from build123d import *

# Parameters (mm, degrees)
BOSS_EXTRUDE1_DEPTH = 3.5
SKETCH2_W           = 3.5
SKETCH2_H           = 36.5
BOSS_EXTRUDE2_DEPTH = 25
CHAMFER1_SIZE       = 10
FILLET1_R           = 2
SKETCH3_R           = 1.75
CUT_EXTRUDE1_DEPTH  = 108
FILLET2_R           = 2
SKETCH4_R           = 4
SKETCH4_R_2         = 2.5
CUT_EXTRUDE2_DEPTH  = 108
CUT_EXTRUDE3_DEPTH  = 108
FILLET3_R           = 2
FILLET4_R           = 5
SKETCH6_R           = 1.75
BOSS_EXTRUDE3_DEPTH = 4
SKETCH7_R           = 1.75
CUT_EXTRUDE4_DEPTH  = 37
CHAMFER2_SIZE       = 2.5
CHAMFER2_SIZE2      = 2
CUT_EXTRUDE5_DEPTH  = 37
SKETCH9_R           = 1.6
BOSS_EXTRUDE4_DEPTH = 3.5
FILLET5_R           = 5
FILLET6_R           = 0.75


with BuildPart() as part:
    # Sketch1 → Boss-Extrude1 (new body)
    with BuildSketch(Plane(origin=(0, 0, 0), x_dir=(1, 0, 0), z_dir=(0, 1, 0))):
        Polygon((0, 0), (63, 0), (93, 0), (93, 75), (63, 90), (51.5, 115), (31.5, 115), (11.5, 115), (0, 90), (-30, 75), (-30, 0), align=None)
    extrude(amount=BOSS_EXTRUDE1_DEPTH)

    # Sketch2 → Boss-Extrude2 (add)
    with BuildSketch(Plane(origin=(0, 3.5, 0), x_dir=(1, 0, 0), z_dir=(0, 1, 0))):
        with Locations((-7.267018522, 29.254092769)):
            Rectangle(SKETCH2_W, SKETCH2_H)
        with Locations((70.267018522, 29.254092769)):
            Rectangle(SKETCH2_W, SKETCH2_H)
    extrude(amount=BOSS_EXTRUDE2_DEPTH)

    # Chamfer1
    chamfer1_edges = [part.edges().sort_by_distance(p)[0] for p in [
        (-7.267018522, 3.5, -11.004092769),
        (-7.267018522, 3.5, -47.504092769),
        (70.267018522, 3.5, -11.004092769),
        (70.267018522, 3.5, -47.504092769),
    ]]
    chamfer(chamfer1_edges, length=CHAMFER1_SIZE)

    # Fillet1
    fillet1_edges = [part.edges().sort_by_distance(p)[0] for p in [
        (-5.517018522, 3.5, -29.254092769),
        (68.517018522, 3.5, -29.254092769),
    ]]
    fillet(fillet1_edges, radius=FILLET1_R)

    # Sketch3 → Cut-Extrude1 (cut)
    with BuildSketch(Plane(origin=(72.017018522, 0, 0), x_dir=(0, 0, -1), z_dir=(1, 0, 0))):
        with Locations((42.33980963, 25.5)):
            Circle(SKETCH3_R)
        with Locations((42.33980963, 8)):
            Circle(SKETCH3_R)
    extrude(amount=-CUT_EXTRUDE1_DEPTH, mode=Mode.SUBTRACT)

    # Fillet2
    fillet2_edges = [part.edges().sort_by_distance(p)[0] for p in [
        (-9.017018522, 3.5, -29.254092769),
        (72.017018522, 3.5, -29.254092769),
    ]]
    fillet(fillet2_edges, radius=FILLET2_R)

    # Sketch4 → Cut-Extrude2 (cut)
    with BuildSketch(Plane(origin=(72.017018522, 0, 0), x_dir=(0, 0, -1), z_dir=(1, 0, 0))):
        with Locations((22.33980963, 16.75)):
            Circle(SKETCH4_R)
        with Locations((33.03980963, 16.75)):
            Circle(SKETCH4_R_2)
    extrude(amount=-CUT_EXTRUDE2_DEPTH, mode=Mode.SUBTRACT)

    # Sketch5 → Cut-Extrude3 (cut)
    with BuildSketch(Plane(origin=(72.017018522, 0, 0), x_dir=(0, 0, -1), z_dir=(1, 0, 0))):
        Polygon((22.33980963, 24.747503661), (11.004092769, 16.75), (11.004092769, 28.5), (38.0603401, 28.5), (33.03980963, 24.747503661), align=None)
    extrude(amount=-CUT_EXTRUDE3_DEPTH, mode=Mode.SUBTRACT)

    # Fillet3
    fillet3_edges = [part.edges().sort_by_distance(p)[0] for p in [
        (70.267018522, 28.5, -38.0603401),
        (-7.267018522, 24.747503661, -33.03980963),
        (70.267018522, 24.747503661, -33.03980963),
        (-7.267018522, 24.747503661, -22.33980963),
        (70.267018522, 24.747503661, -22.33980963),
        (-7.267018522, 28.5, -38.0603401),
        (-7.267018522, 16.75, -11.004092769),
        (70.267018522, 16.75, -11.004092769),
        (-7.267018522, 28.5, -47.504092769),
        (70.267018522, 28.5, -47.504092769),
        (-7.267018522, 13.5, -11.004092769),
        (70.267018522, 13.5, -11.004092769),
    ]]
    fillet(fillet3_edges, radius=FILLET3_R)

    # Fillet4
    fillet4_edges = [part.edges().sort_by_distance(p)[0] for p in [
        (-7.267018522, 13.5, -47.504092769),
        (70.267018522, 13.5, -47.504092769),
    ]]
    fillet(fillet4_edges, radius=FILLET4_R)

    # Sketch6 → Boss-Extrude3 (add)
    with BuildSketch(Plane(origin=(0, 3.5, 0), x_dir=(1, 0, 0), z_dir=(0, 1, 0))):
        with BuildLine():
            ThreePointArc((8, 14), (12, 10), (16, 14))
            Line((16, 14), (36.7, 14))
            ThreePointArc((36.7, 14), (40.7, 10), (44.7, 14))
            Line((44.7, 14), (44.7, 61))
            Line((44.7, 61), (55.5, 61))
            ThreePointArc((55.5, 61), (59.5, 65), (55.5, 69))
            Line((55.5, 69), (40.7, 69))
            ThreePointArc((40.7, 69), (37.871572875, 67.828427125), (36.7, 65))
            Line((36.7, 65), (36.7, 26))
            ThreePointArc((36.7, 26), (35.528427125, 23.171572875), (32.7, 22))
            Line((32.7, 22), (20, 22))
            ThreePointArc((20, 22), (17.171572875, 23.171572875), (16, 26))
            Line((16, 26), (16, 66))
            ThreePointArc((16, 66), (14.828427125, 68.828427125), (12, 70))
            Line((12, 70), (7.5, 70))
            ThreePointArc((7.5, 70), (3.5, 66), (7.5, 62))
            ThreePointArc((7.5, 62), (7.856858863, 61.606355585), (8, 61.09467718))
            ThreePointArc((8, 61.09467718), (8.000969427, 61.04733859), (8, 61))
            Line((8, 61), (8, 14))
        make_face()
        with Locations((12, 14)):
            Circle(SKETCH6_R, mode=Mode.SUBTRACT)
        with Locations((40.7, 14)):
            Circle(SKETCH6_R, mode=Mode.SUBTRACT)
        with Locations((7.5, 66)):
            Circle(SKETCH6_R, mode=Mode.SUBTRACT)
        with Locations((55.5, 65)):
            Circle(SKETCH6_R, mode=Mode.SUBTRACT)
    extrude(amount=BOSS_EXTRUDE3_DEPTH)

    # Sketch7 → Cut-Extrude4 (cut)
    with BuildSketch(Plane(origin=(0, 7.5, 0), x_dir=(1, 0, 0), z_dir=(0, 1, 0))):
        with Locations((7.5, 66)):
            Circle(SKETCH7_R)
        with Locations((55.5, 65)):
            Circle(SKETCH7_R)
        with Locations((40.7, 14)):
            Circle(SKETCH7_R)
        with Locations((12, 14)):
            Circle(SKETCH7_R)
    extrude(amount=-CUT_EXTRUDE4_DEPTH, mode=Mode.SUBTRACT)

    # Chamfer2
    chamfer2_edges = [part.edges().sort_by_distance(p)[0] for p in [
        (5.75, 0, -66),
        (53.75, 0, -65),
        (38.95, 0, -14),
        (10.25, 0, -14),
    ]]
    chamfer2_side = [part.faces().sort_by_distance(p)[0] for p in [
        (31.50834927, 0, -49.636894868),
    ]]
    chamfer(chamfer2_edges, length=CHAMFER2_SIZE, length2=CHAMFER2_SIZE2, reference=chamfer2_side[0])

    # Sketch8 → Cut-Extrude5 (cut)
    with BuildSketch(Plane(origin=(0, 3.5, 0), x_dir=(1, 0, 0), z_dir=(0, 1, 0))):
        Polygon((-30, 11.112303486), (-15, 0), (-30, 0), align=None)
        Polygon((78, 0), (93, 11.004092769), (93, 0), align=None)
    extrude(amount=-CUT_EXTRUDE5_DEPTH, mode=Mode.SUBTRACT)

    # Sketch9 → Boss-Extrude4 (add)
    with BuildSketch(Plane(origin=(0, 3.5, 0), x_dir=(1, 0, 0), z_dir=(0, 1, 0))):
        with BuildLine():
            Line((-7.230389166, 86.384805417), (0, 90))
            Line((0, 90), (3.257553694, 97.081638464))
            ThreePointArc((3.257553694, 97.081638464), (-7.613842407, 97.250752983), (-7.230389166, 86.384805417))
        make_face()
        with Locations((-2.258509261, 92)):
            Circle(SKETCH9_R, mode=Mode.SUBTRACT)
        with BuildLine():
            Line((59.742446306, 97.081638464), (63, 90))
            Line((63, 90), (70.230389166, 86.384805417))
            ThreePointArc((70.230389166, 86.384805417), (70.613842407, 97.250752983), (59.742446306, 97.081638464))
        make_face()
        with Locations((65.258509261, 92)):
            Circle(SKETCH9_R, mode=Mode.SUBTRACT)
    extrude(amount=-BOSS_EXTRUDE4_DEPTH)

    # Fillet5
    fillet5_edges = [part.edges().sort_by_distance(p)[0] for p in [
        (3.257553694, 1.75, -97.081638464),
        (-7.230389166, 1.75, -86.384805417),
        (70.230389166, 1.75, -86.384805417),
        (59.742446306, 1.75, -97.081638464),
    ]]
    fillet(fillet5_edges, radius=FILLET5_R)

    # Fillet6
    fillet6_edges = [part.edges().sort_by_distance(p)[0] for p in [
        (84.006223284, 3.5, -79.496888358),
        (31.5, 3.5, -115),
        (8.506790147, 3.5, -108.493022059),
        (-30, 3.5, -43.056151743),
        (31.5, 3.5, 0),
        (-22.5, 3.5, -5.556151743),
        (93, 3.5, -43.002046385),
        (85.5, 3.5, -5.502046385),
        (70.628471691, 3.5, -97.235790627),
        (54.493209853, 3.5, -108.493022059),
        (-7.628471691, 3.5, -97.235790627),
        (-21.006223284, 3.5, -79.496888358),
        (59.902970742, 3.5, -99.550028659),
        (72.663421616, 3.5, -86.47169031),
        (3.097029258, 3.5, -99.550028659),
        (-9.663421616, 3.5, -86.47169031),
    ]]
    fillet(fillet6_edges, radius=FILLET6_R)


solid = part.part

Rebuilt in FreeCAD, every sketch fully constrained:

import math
import FreeCAD as App
import Part
import Sketcher
from FreeCAD import Vector
Q = App.Units.Quantity


def edges_at(feature, points):
    """Names of the edges that pass closest to the given points."""
    edges = feature.Shape.Edges
    near = lambda p: min(range(len(edges)), key=lambda i: edges[i].distToShape(Part.Vertex(*p))[0])
    return sorted({f"Edge{near(p) + 1}" for p in points})


def add_polygon(sketch, points):
    """Adds a closed chain of lines whose ends are joined by coincident constraints."""
    first, n = sketch.GeometryCount, len(points)
    for a, b in zip(points, points[1:] + points[:1]):
        sketch.addGeometry(Part.LineSegment(App.Vector(*a, 0), App.Vector(*b, 0)), False)
    for i in range(n):
        sketch.addConstraint(Sketcher.Constraint("Coincident", first + i, 2, first + (i + 1) % n, 1))

doc = App.newDocument("Part")
body = doc.addObject("PartDesign::Body", "Body")

# Sketch on XZ plane
sketch1 = doc.addObject("Sketcher::SketchObject", "Sketch")
body.addObject(sketch1)
sketch1.AttachmentSupport = (doc.XZ_Plane, [""])
sketch1.MapMode = "FlatFace"
add_polygon(sketch1, [(93, 0), (93, -75), (63, -90), (51.5, -115), (11.5, -115), (0, -90), (-30, -75), (-30, 0)])  # lines 0-7
sketch1.addConstraint(Sketcher.Constraint("Vertical", 0))
sketch1.addConstraint(Sketcher.Constraint("Horizontal", 3))
sketch1.addConstraint(Sketcher.Constraint("Vertical", 6))
sketch1.addConstraint(Sketcher.Constraint("Horizontal", 7))
sketch1.addConstraint(Sketcher.Constraint("PointOnObject", 4, 2, -2))
sketch1.addConstraint(Sketcher.Constraint("PointOnObject", 6, 2, -1))
sketch1.addConstraint(Sketcher.Constraint("Horizontal", 1, 2, 4, 2))
sketch1.addConstraint(Sketcher.Constraint("Horizontal", 0, 2, 5, 2))
sketch1.addConstraint(Sketcher.Constraint("Equal", 2, 4))
sketch1.addConstraint(Sketcher.Constraint("Equal", 1, 5))
sketch1.addConstraint(Sketcher.Constraint("DistanceX", 3, 2, 3, 1, Q("40 mm")))
sketch1.addConstraint(Sketcher.Constraint("DistanceX", 7, 1, 7, 2, Q("123 mm")))
sketch1.addConstraint(Sketcher.Constraint("DistanceY", 0, 2, 0, 1, Q("75 mm")))
sketch1.addConstraint(Sketcher.Constraint("DistanceX", -1, 1, 0, 2, Q("93 mm")))
sketch1.addConstraint(Sketcher.Constraint("DistanceY", 1, 2, -1, 1, Q("90 mm")))
sketch1.addConstraint(Sketcher.Constraint("DistanceY", 2, 2, -1, 1, Q("115 mm")))
pad1 = doc.addObject("PartDesign::Pad", "Pad")
body.addObject(pad1)
pad1.Profile = sketch1
pad1.Length = 3.5
pad1.Reversed = True

# Sketch on XZ plane
sketch2 = doc.addObject("Sketcher::SketchObject", "Sketch001")
body.addObject(sketch2)
sketch2.AttachmentSupport = (doc.XZ_Plane, [""])
sketch2.MapMode = "FlatFace"
sketch2.AttachmentOffset = App.Placement(Vector(0, 0, -3.5), App.Rotation())
add_polygon(sketch2, [(-9.017019, -47.504093), (-9.017019, -11.004093), (-5.517019, -11.004093), (-5.517019, -47.504093)])  # lines 0-3
add_polygon(sketch2, [(68.517019, -47.504093), (68.517019, -11.004093), (72.017019, -11.004093), (72.017019, -47.504093)])  # lines 4-7
sketch2.addConstraint(Sketcher.Constraint("Vertical", 0))
sketch2.addConstraint(Sketcher.Constraint("Horizontal", 1))
sketch2.addConstraint(Sketcher.Constraint("Vertical", 2))
sketch2.addConstraint(Sketcher.Constraint("Horizontal", 3))
sketch2.addConstraint(Sketcher.Constraint("Vertical", 4))
sketch2.addConstraint(Sketcher.Constraint("Horizontal", 5))
sketch2.addConstraint(Sketcher.Constraint("Vertical", 6))
sketch2.addConstraint(Sketcher.Constraint("Horizontal", 7))
sketch2.addConstraint(Sketcher.Constraint("Horizontal", 1, 2, 4, 2))
sketch2.addConstraint(Sketcher.Constraint("Horizontal", 3, 2, 6, 2))
sketch2.addConstraint(Sketcher.Constraint("Equal", 3, 5))
sketch2.addConstraint(Sketcher.Constraint("DistanceX", 1, 1, 1, 2, Q("3.5 mm")))
sketch2.addConstraint(Sketcher.Constraint("DistanceY", 0, 1, 0, 2, Q("36.5 mm")))
sketch2.addConstraint(Sketcher.Constraint("DistanceX", 0, 2, -1, 1, Q("9.017019 mm")))
sketch2.addConstraint(Sketcher.Constraint("DistanceX", -1, 1, 4, 2, Q("68.517019 mm")))
sketch2.addConstraint(Sketcher.Constraint("DistanceY", 0, 2, -1, 1, Q("11.004093 mm")))
pad2 = doc.addObject("PartDesign::Pad", "Pad001")
body.addObject(pad2)
pad2.Profile = sketch2
pad2.Length = 25
pad2.Reversed = True
doc.recompute()

chamfer = doc.addObject("PartDesign::Chamfer", "Chamfer")
body.addObject(chamfer)
chamfer.Base = (pad2, edges_at(pad2, [
    (-7.267, 3.5, -11.004),
    (-7.267, 3.5, -47.504),
    (70.267, 3.5, -11.004),
    (70.267, 3.5, -47.504),
]))
chamfer.Size = 10
doc.recompute()

fillet = doc.addObject("PartDesign::Fillet", "Fillet")
body.addObject(fillet)
fillet.Base = (chamfer, edges_at(chamfer, [(-5.517, 3.5, -29.254), (68.517, 3.5, -29.254)]))
fillet.Radius = 2

# Sketch on YZ plane
sketch3 = doc.addObject("Sketcher::SketchObject", "Sketch002")
body.addObject(sketch3)
sketch3.AttachmentSupport = (doc.YZ_Plane, [""])
sketch3.MapMode = "FlatFace"
sketch3.AttachmentOffset = App.Placement(Vector(0, 0, 72.017019), App.Rotation())
sketch3.addGeometry(Part.Circle(Vector(25.5, -42.33981, 0), Vector(0, 0, 1), 1.75), False)
sketch3.addGeometry(Part.Circle(Vector(8, -42.33981, 0), Vector(0, 0, 1), 1.75), False)
sketch3.addConstraint(Sketcher.Constraint("Equal", 0, 1))
sketch3.addConstraint(Sketcher.Constraint("Horizontal", 0, 3, 1, 3))
sketch3.addConstraint(Sketcher.Constraint("Diameter", 0, Q("3.5 mm")))
sketch3.addConstraint(Sketcher.Constraint("DistanceX", -1, 1, 1, 3, Q("8 mm")))
sketch3.addConstraint(Sketcher.Constraint("DistanceX", -1, 1, 0, 3, Q("25.5 mm")))
sketch3.addConstraint(Sketcher.Constraint("DistanceY", 0, 3, -1, 1, Q("42.33981 mm")))
pocket1 = doc.addObject("PartDesign::Pocket", "Pocket")
body.addObject(pocket1)
pocket1.Profile = sketch3
pocket1.Length = 108
doc.recompute()

fillet2 = doc.addObject("PartDesign::Fillet", "Fillet001")
body.addObject(fillet2)
fillet2.Base = (pocket1, edges_at(pocket1, [(-9.017, 3.5, -29.254), (72.017, 3.5, -29.254)]))
fillet2.Radius = 2

# Sketch on YZ plane
sketch4 = doc.addObject("Sketcher::SketchObject", "Sketch003")
body.addObject(sketch4)
sketch4.AttachmentSupport = (doc.YZ_Plane, [""])
sketch4.MapMode = "FlatFace"
sketch4.AttachmentOffset = App.Placement(Vector(0, 0, 72.017019), App.Rotation())
sketch4.addGeometry(Part.Circle(Vector(16.75, -22.33981, 0), Vector(0, 0, 1), 4), False)
sketch4.addGeometry(Part.Circle(Vector(16.75, -33.03981, 0), Vector(0, 0, 1), 2.5), False)
sketch4.addConstraint(Sketcher.Constraint("Vertical", 0, 3, 1, 3))
sketch4.addConstraint(Sketcher.Constraint("Diameter", 0, Q("8 mm")))
sketch4.addConstraint(Sketcher.Constraint("Diameter", 1, Q("5 mm")))
sketch4.addConstraint(Sketcher.Constraint("DistanceY", 1, 3, 0, 3, Q("10.7 mm")))
sketch4.addConstraint(Sketcher.Constraint("DistanceX", -1, 1, 0, 3, Q("16.75 mm")))
sketch4.addConstraint(Sketcher.Constraint("DistanceY", 0, 3, -1, 1, Q("22.33981 mm")))
pocket2 = doc.addObject("PartDesign::Pocket", "Pocket001")
body.addObject(pocket2)
pocket2.Profile = sketch4
pocket2.Length = 108

# Sketch on YZ plane
sketch5 = doc.addObject("Sketcher::SketchObject", "Sketch004")
body.addObject(sketch5)
sketch5.AttachmentSupport = (doc.YZ_Plane, [""])
sketch5.MapMode = "FlatFace"
sketch5.AttachmentOffset = App.Placement(Vector(0, 0, 72.017019), App.Rotation())
add_polygon(sketch5, [(16.75, -11.004093), (24.747504, -22.33981), (24.747504, -33.03981), (28.5, -38.06034), (28.5, -11.004093)])  # lines 0-4
sketch5.addConstraint(Sketcher.Constraint("Vertical", 1))
sketch5.addConstraint(Sketcher.Constraint("Vertical", 3))
sketch5.addConstraint(Sketcher.Constraint("Horizontal", 4))
sketch5.addConstraint(Sketcher.Constraint("DistanceY", 1, 2, 1, 1, Q("10.7 mm")))
sketch5.addConstraint(Sketcher.Constraint("DistanceX", 4, 2, 4, 1, Q("11.75 mm")))
sketch5.addConstraint(Sketcher.Constraint("DistanceX", -1, 1, 2, 2, Q("28.5 mm")))
sketch5.addConstraint(Sketcher.Constraint("Distance", 2, Q("6.267931 mm")))
sketch5.addConstraint(Sketcher.Constraint("DistanceY", 3, 1, 3, 2, Q("27.056247 mm")))
sketch5.addConstraint(Sketcher.Constraint("DistanceY", 0, 2, -1, 1, Q("22.33981 mm")))
sketch5.addConstraint(Sketcher.Constraint("DistanceY", 2, 2, -1, 1, Q("38.06034 mm")))
pocket3 = doc.addObject("PartDesign::Pocket", "Pocket002")
body.addObject(pocket3)
pocket3.Profile = sketch5
pocket3.Length = 108
doc.recompute()

fillet3 = doc.addObject("PartDesign::Fillet", "Fillet002")
body.addObject(fillet3)
fillet3.Base = (pocket3, edges_at(pocket3, [
    (70.267, 28.5, -38.06),
    (-7.267, 24.748, -33.04),
    (70.267, 24.748, -33.04),
    (-7.267, 24.748, -22.34),
    (70.267, 24.748, -22.34),
    (-7.267, 28.5, -38.06),
    (-7.267, 16.75, -11.004),
    (70.267, 16.75, -11.004),
    (-7.267, 28.5, -47.504),
    (70.267, 28.5, -47.504),
    (-7.267, 13.5, -11.004),
    (70.267, 13.5, -11.004),
]))
fillet3.Radius = 2
doc.recompute()

fillet4 = doc.addObject("PartDesign::Fillet", "Fillet003")
body.addObject(fillet4)
fillet4.Base = (fillet3, edges_at(fillet3, [(-7.267, 13.5, -47.504), (70.267, 13.5, -47.504)]))
fillet4.Radius = 5

# Sketch on XZ plane
sketch6 = doc.addObject("Sketcher::SketchObject", "Sketch005")
body.addObject(sketch6)
sketch6.AttachmentSupport = (doc.XZ_Plane, [""])
sketch6.MapMode = "FlatFace"
sketch6.AttachmentOffset = App.Placement(Vector(0, 0, -3.5), App.Rotation())
sketch6.addGeometry(Part.ArcOfCircle(Part.Circle(Vector(12, -14, 0), Vector(0, 0, 1), 4), math.radians(0), math.radians(180)), False)
sketch6.addGeometry(Part.LineSegment(Vector(16, -14, 0), Vector(36.7, -14, 0)), False)
sketch6.addGeometry(Part.ArcOfCircle(Part.Circle(Vector(40.7, -14, 0), Vector(0, 0, 1), 4), math.radians(0), math.radians(180)), False)
sketch6.addGeometry(Part.LineSegment(Vector(44.7, -14, 0), Vector(44.7, -61, 0)), False)
sketch6.addGeometry(Part.LineSegment(Vector(44.7, -61, 0), Vector(55.5, -61, 0)), False)
sketch6.addGeometry(Part.ArcOfCircle(Part.Circle(Vector(55.5, -65, 0), Vector(0, 0, 1), 4), math.radians(-90), math.radians(90)), False)
sketch6.addGeometry(Part.LineSegment(Vector(55.5, -69, 0), Vector(40.7, -69, 0)), False)
sketch6.addGeometry(Part.ArcOfCircle(Part.Circle(Vector(40.7, -65, 0), Vector(0, 0, 1), 4), math.radians(180), math.radians(270)), False)
sketch6.addGeometry(Part.LineSegment(Vector(36.7, -65, 0), Vector(36.7, -26, 0)), False)
sketch6.addGeometry(Part.ArcOfCircle(Part.Circle(Vector(32.7, -26, 0), Vector(0, 0, 1), 4), math.radians(0), math.radians(90)), False)
sketch6.addGeometry(Part.LineSegment(Vector(32.7, -22, 0), Vector(20, -22, 0)), False)
sketch6.addGeometry(Part.ArcOfCircle(Part.Circle(Vector(20, -26, 0), Vector(0, 0, 1), 4), math.radians(90), math.radians(180)), False)
sketch6.addGeometry(Part.LineSegment(Vector(16, -26, 0), Vector(16, -66, 0)), False)
sketch6.addGeometry(Part.ArcOfCircle(Part.Circle(Vector(12, -66, 0), Vector(0, 0, 1), 4), math.radians(-90), math.radians(0)), False)
sketch6.addGeometry(Part.LineSegment(Vector(12, -70, 0), Vector(7.5, -70, 0)), False)
sketch6.addGeometry(Part.ArcOfCircle(Part.Circle(Vector(7.5, -66, 0), Vector(0, 0, 1), 4), math.radians(90), math.radians(270)), False)
sketch6.addGeometry(Part.ArcOfCircle(Part.Circle(Vector(6.844677, -61.047339, 0), Vector(0, 0, 1), 1.156292), math.radians(-55.476447), math.radians(-2.346344)), False)
sketch6.addGeometry(Part.ArcOfCircle(Part.Circle(Vector(6.844677, -61.047339, 0), Vector(0, 0, 1), 1.156292), math.radians(-2.346344), math.radians(2.346344)), False)
sketch6.addGeometry(Part.LineSegment(Vector(8, -61, 0), Vector(8, -14, 0)), False)
sketch6.addGeometry(Part.Circle(Vector(12, -14, 0), Vector(0, 0, 1), 1.75), False)
sketch6.addGeometry(Part.Circle(Vector(40.7, -14, 0), Vector(0, 0, 1), 1.75), False)
sketch6.addGeometry(Part.Circle(Vector(7.5, -66, 0), Vector(0, 0, 1), 1.75), False)
sketch6.addGeometry(Part.Circle(Vector(55.5, -65, 0), Vector(0, 0, 1), 1.75), False)
sketch6.addConstraint(Sketcher.Constraint("Coincident", 0, 1, 1, 1))
sketch6.addConstraint(Sketcher.Constraint("Coincident", 1, 2, 2, 2))
sketch6.addConstraint(Sketcher.Constraint("Tangent", 2, 1, 3, 1))
sketch6.addConstraint(Sketcher.Constraint("Coincident", 3, 2, 4, 1))
sketch6.addConstraint(Sketcher.Constraint("Tangent", 4, 2, 5, 2))
sketch6.addConstraint(Sketcher.Constraint("Tangent", 5, 1, 6, 1))
sketch6.addConstraint(Sketcher.Constraint("Tangent", 6, 2, 7, 2))
sketch6.addConstraint(Sketcher.Constraint("Tangent", 7, 1, 8, 1))
sketch6.addConstraint(Sketcher.Constraint("Tangent", 8, 2, 9, 1))
sketch6.addConstraint(Sketcher.Constraint("Tangent", 9, 2, 10, 1))
sketch6.addConstraint(Sketcher.Constraint("Tangent", 10, 2, 11, 1))
sketch6.addConstraint(Sketcher.Constraint("Tangent", 11, 2, 12, 1))
sketch6.addConstraint(Sketcher.Constraint("Tangent", 12, 2, 13, 2))
sketch6.addConstraint(Sketcher.Constraint("Tangent", 13, 1, 14, 1))
sketch6.addConstraint(Sketcher.Constraint("Tangent", 14, 2, 15, 2))
sketch6.addConstraint(Sketcher.Constraint("Coincident", 15, 1, 16, 1))
sketch6.addConstraint(Sketcher.Constraint("Tangent", 16, 2, 17, 1))
sketch6.addConstraint(Sketcher.Constraint("Coincident", 17, 2, 18, 1))
sketch6.addConstraint(Sketcher.Constraint("Tangent", 18, 2, 0, 2))
sketch6.addConstraint(Sketcher.Constraint("Horizontal", 1))
sketch6.addConstraint(Sketcher.Constraint("Vertical", 3))
sketch6.addConstraint(Sketcher.Constraint("Horizontal", 4))
sketch6.addConstraint(Sketcher.Constraint("Horizontal", 6))
sketch6.addConstraint(Sketcher.Constraint("Vertical", 8))
sketch6.addConstraint(Sketcher.Constraint("Horizontal", 10))
sketch6.addConstraint(Sketcher.Constraint("Vertical", 12))
sketch6.addConstraint(Sketcher.Constraint("Horizontal", 14))
sketch6.addConstraint(Sketcher.Constraint("Vertical", 18))
sketch6.addConstraint(Sketcher.Constraint("Coincident", 19, 3, 0, 3))
sketch6.addConstraint(Sketcher.Constraint("Coincident", 20, 3, 2, 3))
sketch6.addConstraint(Sketcher.Constraint("Coincident", 21, 3, 15, 3))
sketch6.addConstraint(Sketcher.Constraint("Coincident", 22, 3, 5, 3))
sketch6.addConstraint(Sketcher.Constraint("Equal", 0, 2))
sketch6.addConstraint(Sketcher.Constraint("Equal", 2, 5))
sketch6.addConstraint(Sketcher.Constraint("Equal", 5, 7))
sketch6.addConstraint(Sketcher.Constraint("Equal", 7, 9))
sketch6.addConstraint(Sketcher.Constraint("Equal", 9, 11))
sketch6.addConstraint(Sketcher.Constraint("Equal", 11, 13))
sketch6.addConstraint(Sketcher.Constraint("Equal", 13, 15))
sketch6.addConstraint(Sketcher.Constraint("Equal", 16, 17))
sketch6.addConstraint(Sketcher.Constraint("Equal", 19, 20))
sketch6.addConstraint(Sketcher.Constraint("Equal", 20, 21))
sketch6.addConstraint(Sketcher.Constraint("Equal", 21, 22))
sketch6.addConstraint(Sketcher.Constraint("Horizontal", 0, 3, 2, 3))
sketch6.addConstraint(Sketcher.Constraint("Horizontal", 20, 3, 0, 1))
sketch6.addConstraint(Sketcher.Constraint("Horizontal", 4, 2, 17, 2))
sketch6.addConstraint(Sketcher.Constraint("Vertical", 2, 3, 7, 3))
sketch6.addConstraint(Sketcher.Constraint("Vertical", 0, 3, 13, 3))
sketch6.addConstraint(Sketcher.Constraint("Vertical", 14, 2, 15, 1))
sketch6.addConstraint(Sketcher.Constraint("Vertical", 16, 2, 17, 2))
sketch6.addConstraint(Sketcher.Constraint("Radius", 0, Q("4 mm")))
sketch6.addConstraint(Sketcher.Constraint("Diameter", 19, Q("3.5 mm")))
sketch6.addConstraint(Sketcher.Constraint("DistanceY", 3, 2, 3, 1, Q("47 mm")))
sketch6.addConstraint(Sketcher.Constraint("DistanceY", 8, 1, 8, 2, Q("39 mm")))
sketch6.addConstraint(Sketcher.Constraint("DistanceY", 12, 2, 12, 1, Q("40 mm")))
sketch6.addConstraint(Sketcher.Constraint("DistanceX", 1, 1, 1, 2, Q("20.7 mm")))
sketch6.addConstraint(Sketcher.Constraint("DistanceX", 4, 1, 4, 2, Q("10.8 mm")))
sketch6.addConstraint(Sketcher.Constraint("DistanceX", 14, 2, 14, 1, Q("4.5 mm")))
sketch6.addConstraint(Sketcher.Constraint("DistanceX", -1, 1, 0, 3, Q("12 mm")))
sketch6.addConstraint(Sketcher.Constraint("DistanceY", 0, 3, -1, 1, Q("14 mm")))
sketch6.addConstraint(Sketcher.Constraint("Radius", 16, Q("1.156292 mm")))
pad3 = doc.addObject("PartDesign::Pad", "Pad002")
body.addObject(pad3)
pad3.Profile = sketch6
pad3.Length = 4
pad3.Reversed = True

# Sketch on XZ plane
sketch7 = doc.addObject("Sketcher::SketchObject", "Sketch006")
body.addObject(sketch7)
sketch7.AttachmentSupport = (doc.XZ_Plane, [""])
sketch7.MapMode = "FlatFace"
sketch7.AttachmentOffset = App.Placement(Vector(0, 0, -7.5), App.Rotation())
sketch7.addGeometry(Part.Circle(Vector(7.5, -66, 0), Vector(0, 0, 1), 1.75), False)
sketch7.addGeometry(Part.Circle(Vector(55.5, -65, 0), Vector(0, 0, 1), 1.75), False)
sketch7.addGeometry(Part.Circle(Vector(40.7, -14, 0), Vector(0, 0, 1), 1.75), False)
sketch7.addGeometry(Part.Circle(Vector(12, -14, 0), Vector(0, 0, 1), 1.75), False)
sketch7.addConstraint(Sketcher.Constraint("Equal", 0, 1))
sketch7.addConstraint(Sketcher.Constraint("Equal", 1, 2))
sketch7.addConstraint(Sketcher.Constraint("Equal", 2, 3))
sketch7.addConstraint(Sketcher.Constraint("Horizontal", 2, 3, 3, 3))
sketch7.addConstraint(Sketcher.Constraint("Diameter", 0, Q("3.5 mm")))
sketch7.addConstraint(Sketcher.Constraint("DistanceY", 0, 3, -1, 1, Q("66 mm")))
sketch7.addConstraint(Sketcher.Constraint("DistanceY", 1, 3, -1, 1, Q("65 mm")))
sketch7.addConstraint(Sketcher.Constraint("DistanceY", 2, 3, -1, 1, Q("14 mm")))
sketch7.addConstraint(Sketcher.Constraint("DistanceX", -1, 1, 3, 3, Q("12 mm")))
sketch7.addConstraint(Sketcher.Constraint("DistanceX", 0, 3, 1, 3, Q("48 mm")))
sketch7.addConstraint(Sketcher.Constraint("DistanceX", -1, 1, 0, 3, Q("7.5 mm")))
sketch7.addConstraint(Sketcher.Constraint("DistanceX", -1, 1, 2, 3, Q("40.7 mm")))
pocket4 = doc.addObject("PartDesign::Pocket", "Pocket003")
body.addObject(pocket4)
pocket4.Profile = sketch7
pocket4.Length = 37
pocket4.Reversed = True
doc.recompute()

chamfer2 = doc.addObject("PartDesign::Chamfer", "Chamfer001")
body.addObject(chamfer2)
chamfer2.Base = (pocket4, edges_at(pocket4, [
    (5.75, 0, -66),
    (53.75, 0, -65),
    (38.95, 0, -14),
    (10.25, 0, -14),
]))
chamfer2.ChamferType = "Two distances"
chamfer2.Size = 2.5
chamfer2.Size2 = 2

# Sketch on XZ plane
sketch8 = doc.addObject("Sketcher::SketchObject", "Sketch007")
body.addObject(sketch8)
sketch8.AttachmentSupport = (doc.XZ_Plane, [""])
sketch8.MapMode = "FlatFace"
sketch8.AttachmentOffset = App.Placement(Vector(0, 0, -3.5), App.Rotation())
add_polygon(sketch8, [(-15, 0), (-30, -11.112303), (-30, 0)])  # lines 0-2
add_polygon(sketch8, [(93, -11.004093), (78, 0), (93, 0)])  # lines 3-5
sketch8.addConstraint(Sketcher.Constraint("Vertical", 1))
sketch8.addConstraint(Sketcher.Constraint("Horizontal", 2))
sketch8.addConstraint(Sketcher.Constraint("Horizontal", 4))
sketch8.addConstraint(Sketcher.Constraint("Vertical", 5))
sketch8.addConstraint(Sketcher.Constraint("PointOnObject", 1, 2, -1))
sketch8.addConstraint(Sketcher.Constraint("PointOnObject", 3, 2, -1))
sketch8.addConstraint(Sketcher.Constraint("Equal", 2, 4))
sketch8.addConstraint(Sketcher.Constraint("DistanceX", 2, 1, 2, 2, Q("15 mm")))
sketch8.addConstraint(Sketcher.Constraint("DistanceX", 0, 2, -1, 1, Q("30 mm")))
sketch8.addConstraint(Sketcher.Constraint("DistanceX", -1, 1, 3, 2, Q("78 mm")))
sketch8.addConstraint(Sketcher.Constraint("DistanceY", 1, 1, 1, 2, Q("11.112303 mm")))
sketch8.addConstraint(Sketcher.Constraint("DistanceY", 5, 2, 5, 1, Q("11.004093 mm")))
pocket5 = doc.addObject("PartDesign::Pocket", "Pocket004")
body.addObject(pocket5)
pocket5.Profile = sketch8
pocket5.Length = 37
pocket5.Reversed = True

# Sketch on XZ plane
sketch9 = doc.addObject("Sketcher::SketchObject", "Sketch008")
body.addObject(sketch9)
sketch9.AttachmentSupport = (doc.XZ_Plane, [""])
sketch9.MapMode = "FlatFace"
sketch9.AttachmentOffset = App.Placement(Vector(0, 0, -3.5), App.Rotation())
sketch9.addGeometry(Part.LineSegment(Vector(-7.230389, -86.384805, 0), Vector(0, -90, 0)), False)
sketch9.addGeometry(Part.LineSegment(Vector(0, -90, 0), Vector(3.257554, -97.081638, 0)), False)
sketch9.addGeometry(Part.ArcOfCircle(Part.Circle(Vector(-2.258509, -92, 0), Vector(0, 0, 1), 7.5), math.radians(131.522746), math.radians(317.347373)), False)
sketch9.addGeometry(Part.Circle(Vector(-2.258509, -92, 0), Vector(0, 0, 1), 1.6), False)
sketch9.addGeometry(Part.LineSegment(Vector(59.742446, -97.081638, 0), Vector(63, -90, 0)), False)
sketch9.addGeometry(Part.LineSegment(Vector(63, -90, 0), Vector(70.230389, -86.384805, 0)), False)
sketch9.addGeometry(Part.ArcOfCircle(Part.Circle(Vector(65.258509, -92, 0), Vector(0, 0, 1), 7.5), math.radians(-137.347373), math.radians(48.477254)), False)
sketch9.addGeometry(Part.Circle(Vector(65.258509, -92, 0), Vector(0, 0, 1), 1.6), False)
sketch9.addConstraint(Sketcher.Constraint("Coincident", 0, 2, 1, 1))
sketch9.addConstraint(Sketcher.Constraint("Coincident", 1, 2, 2, 2))
sketch9.addConstraint(Sketcher.Constraint("Coincident", 2, 1, 0, 1))
sketch9.addConstraint(Sketcher.Constraint("Coincident", 4, 2, 5, 1))
sketch9.addConstraint(Sketcher.Constraint("Coincident", 5, 2, 6, 2))
sketch9.addConstraint(Sketcher.Constraint("Coincident", 6, 1, 4, 1))
sketch9.addConstraint(Sketcher.Constraint("Coincident", 3, 3, 2, 3))
sketch9.addConstraint(Sketcher.Constraint("Coincident", 7, 3, 6, 3))
sketch9.addConstraint(Sketcher.Constraint("Equal", 2, 6))
sketch9.addConstraint(Sketcher.Constraint("Equal", 3, 7))
sketch9.addConstraint(Sketcher.Constraint("PointOnObject", 0, 2, -2))
sketch9.addConstraint(Sketcher.Constraint("Horizontal", 3, 3, 6, 3))
sketch9.addConstraint(Sketcher.Constraint("Horizontal", 0, 2, 4, 2))
sketch9.addConstraint(Sketcher.Constraint("Horizontal", 2, 1, 5, 2))
sketch9.addConstraint(Sketcher.Constraint("Horizontal", 1, 2, 6, 1))
sketch9.addConstraint(Sketcher.Constraint("Equal", 1, 4))
sketch9.addConstraint(Sketcher.Constraint("Diameter", 3, Q("3.2 mm")))
sketch9.addConstraint(Sketcher.Constraint("Radius", 2, Q("7.5 mm")))
sketch9.addConstraint(Sketcher.Constraint("DistanceY", 2, 3, -1, 1, Q("92 mm")))
sketch9.addConstraint(Sketcher.Constraint("DistanceY", 0, 2, -1, 1, Q("90 mm")))
sketch9.addConstraint(Sketcher.Constraint("DistanceX", -1, 1, 4, 2, Q("63 mm")))
sketch9.addConstraint(Sketcher.Constraint("DistanceX", 2, 1, 6, 3, Q("72.488898 mm")))
sketch9.addConstraint(Sketcher.Constraint("Distance", 0, Q("8.083821 mm")))
sketch9.addConstraint(Sketcher.Constraint("Distance", 1, Q("7.794951 mm")))
pad4 = doc.addObject("PartDesign::Pad", "Pad003")
body.addObject(pad4)
pad4.Profile = sketch9
pad4.Length = 3.5
doc.recompute()

fillet5 = doc.addObject("PartDesign::Fillet", "Fillet004")
body.addObject(fillet5)
fillet5.Base = (pad4, edges_at(pad4, [
    (3.258, 1.75, -97.082),
    (-7.23, 1.75, -86.385),
    (70.23, 1.75, -86.385),
    (59.742, 1.75, -97.082),
]))
fillet5.Radius = 5
doc.recompute()

fillet6 = doc.addObject("PartDesign::Fillet", "Fillet005")
body.addObject(fillet6)
fillet6.Base = (fillet5, edges_at(fillet5, [
    (84.006, 3.5, -79.497),
    (31.5, 3.5, -115),
    (8.507, 3.5, -108.493),
    (-30, 3.5, -43.056),
    (31.5, 3.5, 0),
    (-22.5, 3.5, -5.556),
    (93, 3.5, -43.002),
    (85.5, 3.5, -5.502),
    (70.628, 3.5, -97.236),
    (54.493, 3.5, -108.493),
    (-7.628, 3.5, -97.236),
    (-21.006, 3.5, -79.497),
    (59.903, 3.5, -99.55),
    (72.663, 3.5, -86.472),
    (3.097, 3.5, -99.55),
    (-9.663, 3.5, -86.472),
]))
fillet6.Radius = 0.75

doc.recompute()
